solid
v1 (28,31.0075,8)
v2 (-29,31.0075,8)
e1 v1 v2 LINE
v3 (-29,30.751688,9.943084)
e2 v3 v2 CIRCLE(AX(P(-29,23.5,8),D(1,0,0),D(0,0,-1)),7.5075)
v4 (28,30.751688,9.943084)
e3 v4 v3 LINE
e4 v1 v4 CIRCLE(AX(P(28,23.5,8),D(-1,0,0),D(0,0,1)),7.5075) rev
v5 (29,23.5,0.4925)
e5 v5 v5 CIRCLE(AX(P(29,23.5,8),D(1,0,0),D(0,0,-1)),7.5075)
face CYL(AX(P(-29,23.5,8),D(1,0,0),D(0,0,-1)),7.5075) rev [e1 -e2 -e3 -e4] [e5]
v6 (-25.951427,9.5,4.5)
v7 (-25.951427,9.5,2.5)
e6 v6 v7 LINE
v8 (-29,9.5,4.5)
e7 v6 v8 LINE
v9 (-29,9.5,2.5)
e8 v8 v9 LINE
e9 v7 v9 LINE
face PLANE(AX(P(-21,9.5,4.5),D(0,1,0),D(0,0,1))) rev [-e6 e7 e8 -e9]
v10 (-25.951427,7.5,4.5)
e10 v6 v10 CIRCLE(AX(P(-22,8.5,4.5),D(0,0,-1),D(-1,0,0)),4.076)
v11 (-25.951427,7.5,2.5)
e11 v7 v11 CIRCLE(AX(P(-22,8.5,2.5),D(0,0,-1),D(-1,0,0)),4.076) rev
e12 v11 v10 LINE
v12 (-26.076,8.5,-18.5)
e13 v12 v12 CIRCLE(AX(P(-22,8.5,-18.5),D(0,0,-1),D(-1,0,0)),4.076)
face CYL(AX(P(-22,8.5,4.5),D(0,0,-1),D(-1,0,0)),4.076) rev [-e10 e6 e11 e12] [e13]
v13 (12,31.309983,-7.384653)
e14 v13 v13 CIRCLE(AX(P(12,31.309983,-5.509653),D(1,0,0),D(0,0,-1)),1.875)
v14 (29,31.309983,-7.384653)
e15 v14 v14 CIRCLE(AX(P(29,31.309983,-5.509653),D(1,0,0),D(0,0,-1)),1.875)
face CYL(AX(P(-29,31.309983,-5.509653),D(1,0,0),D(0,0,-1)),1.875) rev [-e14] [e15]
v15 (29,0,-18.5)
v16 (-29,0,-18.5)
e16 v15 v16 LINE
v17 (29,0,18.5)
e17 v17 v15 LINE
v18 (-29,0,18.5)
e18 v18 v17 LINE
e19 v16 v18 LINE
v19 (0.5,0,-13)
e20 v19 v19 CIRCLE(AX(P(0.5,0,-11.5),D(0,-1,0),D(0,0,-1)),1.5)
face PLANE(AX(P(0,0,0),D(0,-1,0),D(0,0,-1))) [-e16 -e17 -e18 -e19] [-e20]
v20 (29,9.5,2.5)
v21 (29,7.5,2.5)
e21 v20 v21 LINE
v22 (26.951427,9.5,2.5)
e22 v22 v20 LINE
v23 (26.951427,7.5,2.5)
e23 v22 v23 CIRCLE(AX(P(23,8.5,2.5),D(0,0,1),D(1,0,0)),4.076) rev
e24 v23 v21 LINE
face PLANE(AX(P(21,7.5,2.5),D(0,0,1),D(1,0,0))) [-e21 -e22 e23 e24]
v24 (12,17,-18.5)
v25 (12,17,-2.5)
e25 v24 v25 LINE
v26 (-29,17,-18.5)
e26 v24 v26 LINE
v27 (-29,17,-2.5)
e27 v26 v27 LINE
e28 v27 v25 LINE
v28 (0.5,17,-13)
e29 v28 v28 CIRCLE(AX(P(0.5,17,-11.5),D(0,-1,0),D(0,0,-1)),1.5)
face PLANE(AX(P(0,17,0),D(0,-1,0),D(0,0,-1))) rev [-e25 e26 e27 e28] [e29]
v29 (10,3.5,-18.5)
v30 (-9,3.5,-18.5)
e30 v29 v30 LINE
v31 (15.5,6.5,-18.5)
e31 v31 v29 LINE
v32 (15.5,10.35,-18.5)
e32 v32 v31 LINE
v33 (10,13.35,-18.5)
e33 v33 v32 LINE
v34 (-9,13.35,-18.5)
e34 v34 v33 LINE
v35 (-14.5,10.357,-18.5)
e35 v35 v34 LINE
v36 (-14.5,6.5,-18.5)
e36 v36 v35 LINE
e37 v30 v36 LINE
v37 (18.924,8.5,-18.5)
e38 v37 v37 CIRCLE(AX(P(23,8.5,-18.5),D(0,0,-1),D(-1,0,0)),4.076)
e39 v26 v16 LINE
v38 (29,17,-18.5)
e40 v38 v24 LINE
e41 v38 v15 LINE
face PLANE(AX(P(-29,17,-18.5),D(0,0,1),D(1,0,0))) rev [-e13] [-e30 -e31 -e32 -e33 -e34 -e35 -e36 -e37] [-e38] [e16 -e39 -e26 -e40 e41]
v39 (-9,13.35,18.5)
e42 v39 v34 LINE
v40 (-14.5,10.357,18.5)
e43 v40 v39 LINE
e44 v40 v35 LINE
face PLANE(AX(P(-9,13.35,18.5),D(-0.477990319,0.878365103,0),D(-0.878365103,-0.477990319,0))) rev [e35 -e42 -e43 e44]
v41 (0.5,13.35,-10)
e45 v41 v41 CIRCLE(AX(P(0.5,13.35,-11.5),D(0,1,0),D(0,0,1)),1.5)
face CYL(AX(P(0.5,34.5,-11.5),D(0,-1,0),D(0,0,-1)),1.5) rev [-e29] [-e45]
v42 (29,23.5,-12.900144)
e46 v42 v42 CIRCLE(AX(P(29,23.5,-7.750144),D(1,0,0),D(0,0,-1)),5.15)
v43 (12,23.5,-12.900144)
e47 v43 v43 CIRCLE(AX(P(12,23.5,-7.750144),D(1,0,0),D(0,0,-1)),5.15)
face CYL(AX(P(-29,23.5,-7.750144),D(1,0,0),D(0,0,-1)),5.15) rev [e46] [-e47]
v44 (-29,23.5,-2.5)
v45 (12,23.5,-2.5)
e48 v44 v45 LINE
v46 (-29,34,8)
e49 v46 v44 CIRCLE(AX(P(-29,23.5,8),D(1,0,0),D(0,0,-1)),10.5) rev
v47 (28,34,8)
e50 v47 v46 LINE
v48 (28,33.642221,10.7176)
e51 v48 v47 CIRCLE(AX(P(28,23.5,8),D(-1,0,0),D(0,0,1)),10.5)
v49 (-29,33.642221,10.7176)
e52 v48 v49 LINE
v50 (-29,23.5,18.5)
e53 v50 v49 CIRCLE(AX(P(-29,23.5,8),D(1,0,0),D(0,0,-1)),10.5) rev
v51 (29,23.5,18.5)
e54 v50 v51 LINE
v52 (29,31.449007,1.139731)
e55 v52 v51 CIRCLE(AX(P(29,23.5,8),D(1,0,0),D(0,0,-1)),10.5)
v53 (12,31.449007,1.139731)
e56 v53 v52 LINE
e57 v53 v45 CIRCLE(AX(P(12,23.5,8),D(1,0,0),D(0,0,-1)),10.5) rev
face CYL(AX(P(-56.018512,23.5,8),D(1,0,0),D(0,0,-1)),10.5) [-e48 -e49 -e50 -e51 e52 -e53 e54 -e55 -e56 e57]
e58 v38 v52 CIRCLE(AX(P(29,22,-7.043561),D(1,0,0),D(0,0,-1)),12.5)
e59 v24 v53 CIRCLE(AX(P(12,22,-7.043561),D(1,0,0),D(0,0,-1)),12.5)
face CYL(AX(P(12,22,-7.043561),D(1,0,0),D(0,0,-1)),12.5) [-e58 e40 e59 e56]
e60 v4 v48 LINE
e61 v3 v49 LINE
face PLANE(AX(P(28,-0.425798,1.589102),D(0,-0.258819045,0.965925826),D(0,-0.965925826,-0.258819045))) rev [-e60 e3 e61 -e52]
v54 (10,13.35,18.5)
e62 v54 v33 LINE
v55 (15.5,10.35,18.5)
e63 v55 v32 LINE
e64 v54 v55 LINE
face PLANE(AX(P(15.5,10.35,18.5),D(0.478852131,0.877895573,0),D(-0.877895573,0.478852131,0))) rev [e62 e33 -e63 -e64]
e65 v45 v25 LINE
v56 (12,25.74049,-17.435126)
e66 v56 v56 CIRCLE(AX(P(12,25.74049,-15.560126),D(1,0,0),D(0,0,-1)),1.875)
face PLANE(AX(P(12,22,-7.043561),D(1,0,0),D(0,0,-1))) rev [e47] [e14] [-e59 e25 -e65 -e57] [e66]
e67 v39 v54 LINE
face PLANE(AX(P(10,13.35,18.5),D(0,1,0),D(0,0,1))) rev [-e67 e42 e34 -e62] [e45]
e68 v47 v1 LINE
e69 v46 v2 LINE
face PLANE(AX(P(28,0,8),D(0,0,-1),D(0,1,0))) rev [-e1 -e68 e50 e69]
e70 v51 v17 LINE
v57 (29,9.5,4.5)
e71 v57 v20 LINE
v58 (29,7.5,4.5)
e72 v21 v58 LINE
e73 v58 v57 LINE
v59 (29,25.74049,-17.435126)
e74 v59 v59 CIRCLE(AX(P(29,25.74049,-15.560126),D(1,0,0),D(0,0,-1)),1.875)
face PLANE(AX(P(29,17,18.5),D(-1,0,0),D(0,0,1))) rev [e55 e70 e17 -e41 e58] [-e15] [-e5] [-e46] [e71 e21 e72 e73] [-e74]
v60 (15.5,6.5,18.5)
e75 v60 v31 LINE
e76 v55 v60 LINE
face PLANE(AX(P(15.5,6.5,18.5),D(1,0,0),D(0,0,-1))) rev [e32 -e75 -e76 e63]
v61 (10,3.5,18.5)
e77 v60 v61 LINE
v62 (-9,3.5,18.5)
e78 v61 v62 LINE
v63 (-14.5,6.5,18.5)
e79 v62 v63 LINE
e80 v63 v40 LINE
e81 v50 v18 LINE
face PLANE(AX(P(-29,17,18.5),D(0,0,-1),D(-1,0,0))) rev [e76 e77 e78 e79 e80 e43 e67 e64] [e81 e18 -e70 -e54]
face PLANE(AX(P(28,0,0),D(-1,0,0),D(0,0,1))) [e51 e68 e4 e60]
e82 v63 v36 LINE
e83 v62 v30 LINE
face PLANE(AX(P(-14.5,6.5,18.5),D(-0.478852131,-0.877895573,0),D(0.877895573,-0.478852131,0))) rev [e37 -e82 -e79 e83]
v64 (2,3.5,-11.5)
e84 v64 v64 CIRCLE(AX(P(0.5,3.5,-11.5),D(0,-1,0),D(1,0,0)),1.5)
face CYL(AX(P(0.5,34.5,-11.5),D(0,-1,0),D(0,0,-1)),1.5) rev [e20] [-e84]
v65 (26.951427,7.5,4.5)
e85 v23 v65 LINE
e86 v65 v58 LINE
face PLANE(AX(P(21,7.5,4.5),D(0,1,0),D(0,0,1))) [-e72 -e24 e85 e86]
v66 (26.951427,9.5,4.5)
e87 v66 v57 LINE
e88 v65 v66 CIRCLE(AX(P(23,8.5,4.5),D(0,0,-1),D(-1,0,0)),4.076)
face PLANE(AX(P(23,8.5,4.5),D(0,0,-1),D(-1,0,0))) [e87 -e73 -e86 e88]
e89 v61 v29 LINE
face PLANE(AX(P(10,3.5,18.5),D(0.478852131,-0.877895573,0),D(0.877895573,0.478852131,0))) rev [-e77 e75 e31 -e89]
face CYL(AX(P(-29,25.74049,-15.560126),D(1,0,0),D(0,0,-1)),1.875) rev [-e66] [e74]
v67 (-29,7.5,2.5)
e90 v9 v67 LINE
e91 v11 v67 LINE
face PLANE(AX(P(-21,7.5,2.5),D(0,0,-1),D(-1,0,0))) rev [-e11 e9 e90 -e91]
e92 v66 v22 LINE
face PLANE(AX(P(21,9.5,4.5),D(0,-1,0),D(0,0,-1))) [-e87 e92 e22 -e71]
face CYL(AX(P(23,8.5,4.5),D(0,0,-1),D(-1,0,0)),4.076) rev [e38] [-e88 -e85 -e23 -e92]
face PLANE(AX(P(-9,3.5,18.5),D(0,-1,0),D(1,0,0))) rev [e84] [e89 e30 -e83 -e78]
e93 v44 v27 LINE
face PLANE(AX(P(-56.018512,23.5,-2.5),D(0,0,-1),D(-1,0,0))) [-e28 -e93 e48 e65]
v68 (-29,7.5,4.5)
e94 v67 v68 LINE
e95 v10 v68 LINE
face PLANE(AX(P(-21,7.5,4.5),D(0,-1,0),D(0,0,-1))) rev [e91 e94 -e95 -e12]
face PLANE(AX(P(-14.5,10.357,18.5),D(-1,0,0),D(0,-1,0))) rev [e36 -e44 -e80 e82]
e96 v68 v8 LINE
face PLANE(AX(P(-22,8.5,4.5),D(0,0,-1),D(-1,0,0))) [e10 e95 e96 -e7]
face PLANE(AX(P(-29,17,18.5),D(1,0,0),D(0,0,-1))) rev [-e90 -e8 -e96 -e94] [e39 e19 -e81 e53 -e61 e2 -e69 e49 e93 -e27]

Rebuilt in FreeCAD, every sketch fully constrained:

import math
import FreeCAD as App
import Part
import Sketcher

V = App.Vector
Q = App.Units.Quantity

doc = App.newDocument("Part")
body = doc.addObject("PartDesign::Body", "Body")

# Sketch on XZ plane
sketch1 = body.newObject("Sketcher::SketchObject", "Sketch")
sketch1.AttachmentSupport = (doc.getObject("XZ_Plane"), [""])
sketch1.MapMode = "FlatFace"
sketch1.addGeometry([
    Part.LineSegment(V(-29, -18, 0), V(-29, 18, 0)),
    Part.LineSegment(V(-29, 18, 0), V(29, 18, 0)),
    Part.LineSegment(V(29, 18, 0), V(29, -18, 0)),
    Part.LineSegment(V(29, -18, 0), V(-29, -18, 0)),
], False)
sketch1.addConstraint([
    Sketcher.Constraint("Coincident", 0, 2, 1, 1),
    Sketcher.Constraint("Coincident", 1, 2, 2, 1),
    Sketcher.Constraint("Coincident", 2, 2, 3, 1),
    Sketcher.Constraint("Coincident", 3, 2, 0, 1),
    Sketcher.Constraint("Vertical", 0),
    Sketcher.Constraint("Horizontal", 1),
    Sketcher.Constraint("Vertical", 2),
    Sketcher.Constraint("Horizontal", 3),
    Sketcher.Constraint("Symmetric", 0, 2, 2, 2, -1, 1),
    Sketcher.Constraint("DistanceX", 1, 1, 1, 2, Q("58 mm")),
    Sketcher.Constraint("DistanceY", 0, 1, 0, 2, Q("37 mm")),
])
pad1 = body.newObject("PartDesign::Pad", "Pad")
pad1.Profile = sketch1
pad1.Length = 17
pad1.Reversed = True

# Sketch on YZ plane
sketch2 = body.newObject("Sketcher::SketchObject", "Sketch001")
sketch2.AttachmentSupport = (doc.getObject("YZ_Plane"), [""])
sketch2.MapMode = "FlatFace"
sketch2.AttachmentOffset = App.Placement(V(0, 0, 29), App.Rotation())
sketch2.addGeometry([
    Part.LineSegment(V(24, 18, 0), V(17, 18, 0)),
    Part.LineSegment(V(17, 18, 0), V(17, -2, 0)),
    Part.LineSegment(V(17, -2, 0), V(24, -2, 0)),
    Part.ArcOfCircle(Part.Circle(V(24, 8, 0), V(0, 0, 1), 10), math.radians(-90), math.radians(90)),
], False)
sketch2.addConstraint([
    Sketcher.Constraint("Coincident", 0, 2, 1, 1),
    Sketcher.Constraint("Coincident", 1, 2, 2, 1),
    Sketcher.Constraint("Tangent", 2, 2, 3, 1),
    Sketcher.Constraint("Tangent", 3, 2, 0, 1),
    Sketcher.Constraint("Horizontal", 0),
    Sketcher.Constraint("Vertical", 1),
    Sketcher.Constraint("Horizontal", 2),
    Sketcher.Constraint("Radius", 3, Q("10.5 mm")),
    Sketcher.Constraint("DistanceX", 0, 2, 0, 1, Q("6.5 mm")),
    Sketcher.Constraint("DistanceY", -1, 1, 3, 3, Q("8 mm")),
    Sketcher.Constraint("DistanceX", -1, 1, 0, 2, Q("17 mm")),
])
pad2 = body.newObject("PartDesign::Pad", "Pad001")
pad2.Profile = sketch2
pad2.Length = 58
pad2.Reversed = True

# Sketch on YZ plane
sketch3 = body.newObject("Sketcher::SketchObject", "Sketch002")
sketch3.AttachmentSupport = (doc.getObject("YZ_Plane"), [""])
sketch3.MapMode = "FlatFace"
sketch3.AttachmentOffset = App.Placement(V(0, 0, 29), App.Rotation())
sketch3.addGeometry(Part.Circle(V(22, -7, 0), V(0, 0, 1), 12), False)
sketch3.addConstraint([
    Sketcher.Constraint("Diameter", 0, Q("25 mm")),
    Sketcher.Constraint("DistanceX", -1, 1, 0, 3, Q("22 mm")),
    Sketcher.Constraint("DistanceY", 0, 3, -1, 1, Q("7.043561 mm")),
])
pad3 = body.newObject("PartDesign::Pad", "Pad002")
pad3.Profile = sketch3
pad3.Length = 17
pad3.Reversed = True

# Sketch on XY plane
sketch4 = body.newObject("Sketcher::SketchObject", "Sketch003")
sketch4.AttachmentSupport = (doc.getObject("XY_Plane"), [""])
sketch4.MapMode = "FlatFace"
sketch4.AttachmentOffset = App.Placement(V(0, 0, -18.5), App.Rotation())
sketch4.addGeometry([
    Part.LineSegment(V(15.5, 10.3, 0), V(15.5, 6.5, 0)),  # 0
    Part.LineSegment(V(15.5, 6.5, 0), V(10, 3.5, 0)),  # 1
    Part.LineSegment(V(10, 3.5, 0), V(-9, 3.5, 0)),  # 2
    Part.LineSegment(V(-9, 3.5, 0), V(-14.5, 6.5, 0)),  # 3
    Part.LineSegment(V(-14.5, 6.5, 0), V(-14.5, 10.4, 0)),  # 4
    Part.LineSegment(V(-14.5, 10.4, 0), V(-9, 13.3, 0)),  # 5
    Part.LineSegment(V(-9, 13.3, 0), V(10, 13.3, 0)),  # 6
    Part.LineSegment(V(10, 13.3, 0), V(15.5, 10.3, 0)),  # 7
], False)
sketch4.addConstraint([
    Sketcher.Constraint("Coincident", 0, 2, 1, 1),
    Sketcher.Constraint("Coincident", 1, 2, 2, 1),
    Sketcher.Constraint("Coincident", 2, 2, 3, 1),
    Sketcher.Constraint("Coincident", 3, 2, 4, 1),
    Sketcher.Constraint("Coincident", 4, 2, 5, 1),
    Sketcher.Constraint("Coincident", 5, 2, 6, 1),
    Sketcher.Constraint("Coincident", 6, 2, 7, 1),
    Sketcher.Constraint("Coincident", 7, 2, 0, 1),
    Sketcher.Constraint("Vertical", 0),
    Sketcher.Constraint("Horizontal", 2),
    Sketcher.Constraint("Vertical", 4),
    Sketcher.Constraint("Horizontal", 6),
    Sketcher.Constraint("Parallel", 3, 7),
    Sketcher.Constraint("Horizontal", 0, 2, 3, 2),
    Sketcher.Constraint("Vertical", 2, 2, 5, 2),
    Sketcher.Constraint("Vertical", 1, 2, 6, 2),
    Sketcher.Constraint("Equal", 1, 3),
    Sketcher.Constraint("DistanceX", 2, 2, 2, 1, Q("19 mm")),
    Sketcher.Constraint("DistanceX", -1, 1, 1, 2, Q("10 mm")),
    Sketcher.Constraint("DistanceY", 1, 2, 0, 2, Q("3 mm")),
    Sketcher.Constraint("DistanceX", 3, 2, 0, 2, Q("30 mm")),
    Sketcher.Constraint("DistanceY", 0, 2, 0, 1, Q("3.85 mm")),
    Sketcher.Constraint("DistanceY", -1, 1, 0, 2, Q("6.5 mm")),
    Sketcher.Constraint("DistanceY", 4, 1, 4, 2, Q("3.857 mm")),
])
pocket1 = body.newObject("PartDesign::Pocket", "Pocket")
pocket1.Profile = sketch4
pocket1.Type = "ThroughAll"
pocket1.Reversed = True

# Sketch on XY plane
sketch5 = body.newObject("Sketcher::SketchObject", "Sketch004")
sketch5.AttachmentSupport = (doc.getObject("XY_Plane"), [""])
sketch5.MapMode = "FlatFace"
sketch5.AttachmentOffset = App.Placement(V(0, 0, -18.5), App.Rotation())
sketch5.addGeometry([
    Part.Circle(V(23, 8.5, 0), V(0, 0, 1), 4.1),
    Part.Circle(V(-22, 8.5, 0), V(0, 0, 1), 4.1),
], False)
sketch5.addConstraint([
    Sketcher.Constraint("Equal", 0, 1),
    Sketcher.Constraint("Horizontal", 0, 3, 1, 3),
    Sketcher.Constraint("Diameter", 0, Q("8.152 mm")),
    Sketcher.Constraint("DistanceX", -1, 1, 0, 3, Q("23 mm")),
    Sketcher.Constraint("DistanceX", 1, 3, -1, 1, Q("22 mm")),
    Sketcher.Constraint("DistanceY", -1, 1, 0, 3, Q("8.5 mm")),
])
pocket2 = body.newObject("PartDesign::Pocket", "Pocket001")
pocket2.Profile = sketch5
pocket2.Length = 23
pocket2.Reversed = True

# Sketch on YZ plane
sketch6 = body.newObject("Sketcher::SketchObject", "Sketch005")
sketch6.AttachmentSupport = (doc.getObject("YZ_Plane"), [""])
sketch6.MapMode = "FlatFace"
sketch6.AttachmentOffset = App.Placement(V(0, 0, 29), App.Rotation())
sketch6.addGeometry([
    Part.Circle(V(24, 8, 0), V(0, 0, 1), 8),
    Part.Circle(V(24, -8, 0), V(0, 0, 1), 5),
], False)
sketch6.addConstraint([
    Sketcher.Constraint("Vertical", 0, 3, 1, 3),
    Sketcher.Constraint("Diameter", 1, Q("10.3 mm")),
    Sketcher.Constraint("Diameter", 0, Q("15.015 mm")),
    Sketcher.Constraint("DistanceY", -1, 1, 0, 3, Q("8 mm")),
    Sketcher.Constraint("DistanceX", -1, 1, 0, 3, Q("23.5 mm")),
    Sketcher.Constraint("DistanceY", 1, 3, -1, 1, Q("7.750144 mm")),
])
pocket3 = body.newObject("PartDesign::Pocket", "Pocket002")
pocket3.Profile = sketch6
pocket3.Type = "ThroughAll"

# Sketch on YZ plane
sketch7 = body.newObject("Sketcher::SketchObject", "Sketch006")
sketch7.AttachmentSupport = (doc.getObject("YZ_Plane"), [""])
sketch7.MapMode = "FlatFace"
sketch7.AttachmentOffset = App.Placement(V(0, 0, 29), App.Rotation())
sketch7.addGeometry([
    Part.Circle(V(31.3, -5.5, 0), V(0, 0, 1), 1.9),
    Part.Circle(V(25.7, -15.6, 0), V(0, 0, 1), 1.9),
], False)
sketch7.addConstraint([
    Sketcher.Constraint("Equal", 0, 1),
    Sketcher.Constraint("Diameter", 0, Q("3.75 mm")),
    Sketcher.Constraint("DistanceX", -1, 1, 1, 3, Q("25.74049 mm")),
    Sketcher.Constraint("DistanceX", -1, 1, 0, 3, Q("31.309983 mm")),
    Sketcher.Constraint("DistanceY", 0, 3, -1, 1, Q("5.509653 mm")),
    Sketcher.Constraint("DistanceY", 1, 3, -1, 1, Q("15.560126 mm")),
])
pocket4 = body.newObject("PartDesign::Pocket", "Pocket003")
pocket4.Profile = sketch7
pocket4.Type = "ThroughAll"

# Sketch on YZ plane
sketch8 = body.newObject("Sketcher::SketchObject", "Sketch007")
sketch8.AttachmentSupport = (doc.getObject("YZ_Plane"), [""])
sketch8.MapMode = "FlatFace"
sketch8.AttachmentOffset = App.Placement(V(0, 0, -29), App.Rotation())
sketch8.addGeometry([
    Part.LineSegment(V(9.5, 2.5, 0), V(7.5, 2.5, 0)),
    Part.LineSegment(V(7.5, 2.5, 0), V(7.5, 4.5, 0)),
    Part.LineSegment(V(7.5, 4.5, 0), V(9.5, 4.5, 0)),
    Part.LineSegment(V(9.5, 4.5, 0), V(9.5, 2.5, 0)),
], False)
sketch8.addConstraint([
    Sketcher.Constraint("Coincident", 0, 2, 1, 1),
    Sketcher.Constraint("Coincident", 1, 2, 2, 1),
    Sketcher.Constraint("Coincident", 2, 2, 3, 1),
    Sketcher.Constraint("Coincident", 3, 2, 0, 1),
    Sketcher.Constraint("Horizontal", 0),
    Sketcher.Constraint("Vertical", 1),
    Sketcher.Constraint("Horizontal", 2),
    Sketcher.Constraint("Vertical", 3),
    Sketcher.Constraint("Equal", 2, 1),
    Sketcher.Constraint("DistanceX", 0, 2, 0, 1, Q("2 mm")),
    Sketcher.Constraint("DistanceX", -1, 1, 0, 2, Q("7.5 mm")),
    Sketcher.Constraint("DistanceY", -1, 1, 0, 2, Q("2.5 mm")),
])
pocket5 = body.newObject("PartDesign::Pocket", "Pocket004")
pocket5.Profile = sketch8
pocket5.Length = 8
pocket5.Reversed = True
doc.recompute()

mirrored = body.newObject("PartDesign::Mirrored", "Mirrored")
mirrored.Originals = [pocket5]
mirrored.MirrorPlane = (doc.getObject("YZ_Plane"), [""])
body.Tip = mirrored

# Sketch on YZ plane
sketch9 = body.newObject("Sketcher::SketchObject", "Sketch008")
sketch9.AttachmentSupport = (doc.getObject("YZ_Plane"), [""])
sketch9.MapMode = "FlatFace"
sketch9.AttachmentOffset = App.Placement(V(0, 0, -29), App.Rotation())
sketch9.addGeometry([
    Part.ArcOfCircle(Part.Circle(V(23.5, 8, 0), V(0, 0, 1), 7.5), math.radians(0), math.radians(15)),
    Part.LineSegment(V(30.8, 9.9, 0), V(33.6, 10.7, 0)),
    Part.ArcOfCircle(Part.Circle(V(23.5, 8, 0), V(0, 0, 1), 10.5), math.radians(0), math.radians(15)),
    Part.LineSegment(V(34, 8, 0), V(31, 8, 0)),
], False)
sketch9.addConstraint([
    Sketcher.Constraint("Coincident", 0, 2, 1, 1),
    Sketcher.Constraint("Coincident", 1, 2, 2, 2),
    Sketcher.Constraint("Coincident", 2, 1, 3, 1),
    Sketcher.Constraint("Coincident", 3, 2, 0, 1),
    Sketcher.Constraint("Horizontal", 3),
    Sketcher.Constraint("Coincident", 2, 3, 0, 3),
    Sketcher.Constraint("Horizontal", 0, 3, 2, 1),
    Sketcher.Constraint("Radius", 2, Q("10.5 mm")),
    Sketcher.Constraint("Angle", 1, Q("15 deg")),
    Sketcher.Constraint("DistanceY", -1, 1, 0, 3, Q("8 mm")),
    Sketcher.Constraint("DistanceX", -1, 1, 2, 1, Q("34 mm")),
    Sketcher.Constraint("Radius", 0, Q("7.5075 mm")),
    Sketcher.Constraint("DistanceY", -1, 1, 1, 2, Q("10.7176 mm")),
])
pocket6 = body.newObject("PartDesign::Pocket", "Pocket005")
pocket6.Profile = sketch9
pocket6.Length = 57
pocket6.Reversed = True

# Sketch on XZ plane
sketch10 = body.newObject("Sketcher::SketchObject", "Sketch009")
sketch10.AttachmentSupport = (doc.getObject("XZ_Plane"), [""])
sketch10.MapMode = "FlatFace"
sketch10.addGeometry(Part.Circle(V(0.5, -11.5, 0), V(0, 0, 1), 1.5), False)
sketch10.addConstraint([
    Sketcher.Constraint("Diameter", 0, Q("3 mm")),
    Sketcher.Constraint("DistanceX", -1, 1, 0, 3, Q("0.5 mm")),
    Sketcher.Constraint("DistanceY", 0, 3, -1, 1, Q("11.5 mm")),
])
pocket7 = body.newObject("PartDesign::Pocket", "Pocket006")
pocket7.Profile = sketch10
pocket7.Type = "ThroughAll"

doc.recompute()
